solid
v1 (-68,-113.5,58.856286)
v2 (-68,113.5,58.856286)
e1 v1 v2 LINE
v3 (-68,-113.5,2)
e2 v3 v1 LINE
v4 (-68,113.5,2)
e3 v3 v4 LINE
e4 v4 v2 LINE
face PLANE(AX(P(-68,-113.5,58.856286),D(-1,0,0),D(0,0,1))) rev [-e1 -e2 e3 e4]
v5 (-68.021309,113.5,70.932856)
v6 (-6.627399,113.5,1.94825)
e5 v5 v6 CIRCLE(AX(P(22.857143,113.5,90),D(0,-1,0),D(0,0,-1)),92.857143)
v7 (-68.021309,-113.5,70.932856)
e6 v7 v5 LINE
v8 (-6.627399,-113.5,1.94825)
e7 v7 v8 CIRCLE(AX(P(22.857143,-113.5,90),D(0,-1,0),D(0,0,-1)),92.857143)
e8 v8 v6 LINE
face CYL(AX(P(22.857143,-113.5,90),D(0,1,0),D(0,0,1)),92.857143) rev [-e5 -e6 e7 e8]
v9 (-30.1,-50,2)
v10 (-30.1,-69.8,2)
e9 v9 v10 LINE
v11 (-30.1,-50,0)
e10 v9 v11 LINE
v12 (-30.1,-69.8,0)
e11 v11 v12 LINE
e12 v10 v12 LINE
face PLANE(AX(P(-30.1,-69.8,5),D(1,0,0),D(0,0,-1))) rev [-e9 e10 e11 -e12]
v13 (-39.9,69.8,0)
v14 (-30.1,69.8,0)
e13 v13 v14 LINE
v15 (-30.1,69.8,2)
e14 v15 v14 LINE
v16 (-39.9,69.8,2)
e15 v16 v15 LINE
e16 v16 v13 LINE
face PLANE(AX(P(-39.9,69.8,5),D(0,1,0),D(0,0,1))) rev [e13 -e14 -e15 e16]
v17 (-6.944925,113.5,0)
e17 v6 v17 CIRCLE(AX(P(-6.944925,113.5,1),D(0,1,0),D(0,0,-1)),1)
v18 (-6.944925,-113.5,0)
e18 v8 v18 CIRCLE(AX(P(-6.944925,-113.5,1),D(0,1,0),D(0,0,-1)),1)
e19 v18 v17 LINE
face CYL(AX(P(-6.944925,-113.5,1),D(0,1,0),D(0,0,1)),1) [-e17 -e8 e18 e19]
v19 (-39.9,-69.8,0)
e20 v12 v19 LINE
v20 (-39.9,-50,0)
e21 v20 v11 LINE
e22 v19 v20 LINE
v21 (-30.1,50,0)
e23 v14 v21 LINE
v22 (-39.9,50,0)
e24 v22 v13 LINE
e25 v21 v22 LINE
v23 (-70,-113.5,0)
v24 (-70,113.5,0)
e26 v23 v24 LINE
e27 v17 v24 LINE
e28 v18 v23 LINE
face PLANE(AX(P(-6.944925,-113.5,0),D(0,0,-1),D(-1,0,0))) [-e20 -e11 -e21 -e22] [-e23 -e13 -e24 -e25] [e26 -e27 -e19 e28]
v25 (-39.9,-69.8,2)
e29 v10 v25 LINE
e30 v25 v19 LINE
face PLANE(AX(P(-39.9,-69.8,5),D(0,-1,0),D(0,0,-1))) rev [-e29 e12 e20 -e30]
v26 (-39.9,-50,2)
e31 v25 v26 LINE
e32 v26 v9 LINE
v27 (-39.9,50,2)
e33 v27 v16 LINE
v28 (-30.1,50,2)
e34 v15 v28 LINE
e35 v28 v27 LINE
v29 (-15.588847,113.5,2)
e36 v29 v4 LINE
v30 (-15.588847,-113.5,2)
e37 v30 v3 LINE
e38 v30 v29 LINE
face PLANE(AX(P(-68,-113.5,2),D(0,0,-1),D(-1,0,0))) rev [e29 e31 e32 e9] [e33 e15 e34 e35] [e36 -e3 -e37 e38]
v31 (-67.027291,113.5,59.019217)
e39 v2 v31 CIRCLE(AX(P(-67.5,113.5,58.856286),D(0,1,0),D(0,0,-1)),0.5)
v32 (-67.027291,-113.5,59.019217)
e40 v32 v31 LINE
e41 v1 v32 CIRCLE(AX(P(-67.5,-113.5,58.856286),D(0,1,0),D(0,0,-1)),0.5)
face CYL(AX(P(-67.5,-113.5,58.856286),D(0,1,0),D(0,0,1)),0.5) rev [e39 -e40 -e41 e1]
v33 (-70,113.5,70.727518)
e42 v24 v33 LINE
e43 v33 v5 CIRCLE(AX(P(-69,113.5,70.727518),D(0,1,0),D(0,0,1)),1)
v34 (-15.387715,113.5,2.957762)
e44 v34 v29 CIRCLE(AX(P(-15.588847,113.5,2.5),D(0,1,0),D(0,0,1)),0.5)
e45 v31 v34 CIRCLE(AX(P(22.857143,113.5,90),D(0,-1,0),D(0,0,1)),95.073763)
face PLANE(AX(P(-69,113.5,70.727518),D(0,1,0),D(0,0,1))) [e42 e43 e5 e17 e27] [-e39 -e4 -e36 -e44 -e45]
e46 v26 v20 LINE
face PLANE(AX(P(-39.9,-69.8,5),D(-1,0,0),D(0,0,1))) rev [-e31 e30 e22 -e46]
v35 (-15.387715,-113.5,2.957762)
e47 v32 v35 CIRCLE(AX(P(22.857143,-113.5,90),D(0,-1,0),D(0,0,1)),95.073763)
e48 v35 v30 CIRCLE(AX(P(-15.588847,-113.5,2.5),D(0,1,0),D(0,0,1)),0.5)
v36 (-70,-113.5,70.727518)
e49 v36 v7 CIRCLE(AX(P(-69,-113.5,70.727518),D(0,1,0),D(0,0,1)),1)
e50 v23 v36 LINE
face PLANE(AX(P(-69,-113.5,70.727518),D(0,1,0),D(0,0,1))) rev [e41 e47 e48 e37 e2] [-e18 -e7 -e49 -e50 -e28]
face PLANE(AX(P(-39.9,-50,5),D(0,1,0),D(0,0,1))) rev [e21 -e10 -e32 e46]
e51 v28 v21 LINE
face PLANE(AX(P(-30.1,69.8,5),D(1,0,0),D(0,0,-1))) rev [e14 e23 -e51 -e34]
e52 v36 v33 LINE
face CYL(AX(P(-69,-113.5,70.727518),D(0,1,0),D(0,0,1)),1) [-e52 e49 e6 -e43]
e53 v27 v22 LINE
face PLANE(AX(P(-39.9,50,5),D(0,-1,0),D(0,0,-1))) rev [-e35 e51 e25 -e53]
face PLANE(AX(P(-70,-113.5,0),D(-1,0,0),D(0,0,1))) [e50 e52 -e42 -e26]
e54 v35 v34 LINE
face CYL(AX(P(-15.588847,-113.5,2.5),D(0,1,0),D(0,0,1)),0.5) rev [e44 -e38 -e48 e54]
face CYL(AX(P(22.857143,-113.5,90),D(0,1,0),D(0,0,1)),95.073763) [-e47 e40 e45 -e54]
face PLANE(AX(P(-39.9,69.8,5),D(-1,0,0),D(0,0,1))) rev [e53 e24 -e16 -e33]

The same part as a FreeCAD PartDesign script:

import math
import FreeCAD as App
import Part
import Sketcher
from FreeCAD import Vector
Q = App.Units.Quantity


def add_polygon(sketch, points):
    """Adds a closed chain of lines whose ends are joined by coincident constraints."""
    first, n = sketch.GeometryCount, len(points)
    for a, b in zip(points, points[1:] + points[:1]):
        sketch.addGeometry(Part.LineSegment(App.Vector(*a, 0), App.Vector(*b, 0)), False)
    for i in range(n):
        sketch.addConstraint(Sketcher.Constraint("Coincident", first + i, 2, first + (i + 1) % n, 1))

doc = App.newDocument("Part")
body = doc.addObject("PartDesign::Body", "Body")

# Sketch on XZ plane
sketch1 = body.newObject("Sketcher::SketchObject", "Sketch")
sketch1.AttachmentSupport = (doc.getObject("XZ_Plane"), [""])
sketch1.MapMode = "FlatFace"
sketch1.addGeometry([
    Part.LineSegment(Vector(-6.944925, 0, 0), Vector(-70, 0, 0)),  # 0
    Part.LineSegment(Vector(-70, 0, 0), Vector(-70, 70.727518, 0)),  # 1
    Part.ArcOfCircle(Part.Circle(Vector(-69, 70.727518, 0), Vector(0, 0, 1), 1), math.radians(11.849314), math.radians(180)),  # 2
    Part.ArcOfCircle(Part.Circle(Vector(22.857143, 90, 0), Vector(0, 0, 1), 92.857143), math.radians(-168.150686), math.radians(-108.513364)),  # 3
    Part.ArcOfCircle(Part.Circle(Vector(-6.944925, 1, 0), Vector(0, 0, 1), 1), math.radians(-90), math.radians(71.486636)),  # 4
    Part.ArcOfCircle(Part.Circle(Vector(-67.5, 58.856286, 0), Vector(0, 0, 1), 0.5), math.radians(19.017716), math.radians(180)),  # 5
    Part.LineSegment(Vector(-68, 58.856286, 0), Vector(-68, 2, 0)),  # 6
    Part.LineSegment(Vector(-68, 2, 0), Vector(-15.588847, 2, 0)),  # 7
    Part.ArcOfCircle(Part.Circle(Vector(-15.588847, 2.5, 0), Vector(0, 0, 1), 0.5), math.radians(-90), math.radians(66.280142)),  # 8
    Part.ArcOfCircle(Part.Circle(Vector(22.857143, 90, 0), Vector(0, 0, 1), 95.073763), math.radians(-160.982284), math.radians(-113.719858)),  # 9
], False)
sketch1.addConstraint([
    Sketcher.Constraint("Coincident", 0, 2, 1, 1),
    Sketcher.Constraint("Tangent", 1, 2, 2, 2),
    Sketcher.Constraint("Tangent", 2, 1, 3, 1),
    Sketcher.Constraint("Tangent", 3, 2, 4, 2),
    Sketcher.Constraint("Tangent", 4, 1, 0, 1),
    Sketcher.Constraint("Tangent", 5, 2, 6, 1),
    Sketcher.Constraint("Coincident", 6, 2, 7, 1),
    Sketcher.Constraint("Tangent", 7, 2, 8, 1),
    Sketcher.Constraint("Tangent", 8, 2, 9, 2),
    Sketcher.Constraint("Tangent", 9, 1, 5, 1),
    Sketcher.Constraint("Horizontal", 0),
    Sketcher.Constraint("Vertical", 1),
    Sketcher.Constraint("Vertical", 6),
    Sketcher.Constraint("Horizontal", 7),
    Sketcher.Constraint("Coincident", 9, 3, 3, 3),
    Sketcher.Constraint("Equal", 2, 4),
    Sketcher.Constraint("Equal", 5, 8),
    Sketcher.Constraint("PointOnObject", 0, 2, -1),
    Sketcher.Constraint("Radius", 2, Q("1 mm")),
    Sketcher.Constraint("Radius", 5, Q("0.5 mm")),
    Sketcher.Constraint("DistanceX", 2, 3, -1, 1, Q("69 mm")),
    Sketcher.Constraint("DistanceY", -1, 1, 3, 3, Q("90 mm")),
    Sketcher.Constraint("DistanceX", 5, 2, -1, 1, Q("68 mm")),
    Sketcher.Constraint("DistanceY", -1, 1, 6, 2, Q("2 mm")),
    Sketcher.Constraint("Radius", 3, Q("92.857143 mm")),
    Sketcher.Constraint("Radius", 9, Q("95.073763 mm")),
    Sketcher.Constraint("DistanceY", 9, 1, 2, 3, Q("11.708301 mm")),
])
pad1 = body.newObject("PartDesign::Pad", "Pad")
pad1.Profile = sketch1
pad1.Type = "TwoLengths"
pad1.Length = 113.5
pad1.Length2 = 113.5
pad1.Reversed = True

# Sketch on XY plane
sketch2 = body.newObject("Sketcher::SketchObject", "Sketch001")
sketch2.AttachmentSupport = (doc.getObject("XY_Plane"), [""])
sketch2.MapMode = "FlatFace"
add_polygon(sketch2, [(-39.9, 50), (-39.9, 69.8), (-30.1, 69.8), (-30.1, 50)])  # lines 0-3
add_polygon(sketch2, [(-39.9, -69.8), (-39.9, -50), (-30.1, -50), (-30.1, -69.8)])  # lines 4-7
sketch2.addConstraint([
    Sketcher.Constraint("Vertical", 0),
    Sketcher.Constraint("Horizontal", 1),
    Sketcher.Constraint("Vertical", 2),
    Sketcher.Constraint("Horizontal", 3),
    Sketcher.Constraint("Vertical", 4),
    Sketcher.Constraint("Horizontal", 5),
    Sketcher.Constraint("Vertical", 6),
    Sketcher.Constraint("Horizontal", 7),
    Sketcher.Constraint("Symmetric", 3, 2, 4, 2, -1),
    Sketcher.Constraint("Symmetric", 1, 2, 6, 2, -1),
    Sketcher.Constraint("DistanceX", 1, 1, 1, 2, Q("9.8 mm")),
    Sketcher.Constraint("DistanceY", 0, 1, 0, 2, Q("19.8 mm")),
    Sketcher.Constraint("DistanceY", -1, 1, 2, 2, Q("50 mm")),
    Sketcher.Constraint("DistanceX", 0, 2, -1, 1, Q("39.9 mm")),
])
pocket1 = body.newObject("PartDesign::Pocket", "Pocket")
pocket1.Profile = sketch2
pocket1.Length = 5
pocket1.Reversed = True

doc.recompute()
